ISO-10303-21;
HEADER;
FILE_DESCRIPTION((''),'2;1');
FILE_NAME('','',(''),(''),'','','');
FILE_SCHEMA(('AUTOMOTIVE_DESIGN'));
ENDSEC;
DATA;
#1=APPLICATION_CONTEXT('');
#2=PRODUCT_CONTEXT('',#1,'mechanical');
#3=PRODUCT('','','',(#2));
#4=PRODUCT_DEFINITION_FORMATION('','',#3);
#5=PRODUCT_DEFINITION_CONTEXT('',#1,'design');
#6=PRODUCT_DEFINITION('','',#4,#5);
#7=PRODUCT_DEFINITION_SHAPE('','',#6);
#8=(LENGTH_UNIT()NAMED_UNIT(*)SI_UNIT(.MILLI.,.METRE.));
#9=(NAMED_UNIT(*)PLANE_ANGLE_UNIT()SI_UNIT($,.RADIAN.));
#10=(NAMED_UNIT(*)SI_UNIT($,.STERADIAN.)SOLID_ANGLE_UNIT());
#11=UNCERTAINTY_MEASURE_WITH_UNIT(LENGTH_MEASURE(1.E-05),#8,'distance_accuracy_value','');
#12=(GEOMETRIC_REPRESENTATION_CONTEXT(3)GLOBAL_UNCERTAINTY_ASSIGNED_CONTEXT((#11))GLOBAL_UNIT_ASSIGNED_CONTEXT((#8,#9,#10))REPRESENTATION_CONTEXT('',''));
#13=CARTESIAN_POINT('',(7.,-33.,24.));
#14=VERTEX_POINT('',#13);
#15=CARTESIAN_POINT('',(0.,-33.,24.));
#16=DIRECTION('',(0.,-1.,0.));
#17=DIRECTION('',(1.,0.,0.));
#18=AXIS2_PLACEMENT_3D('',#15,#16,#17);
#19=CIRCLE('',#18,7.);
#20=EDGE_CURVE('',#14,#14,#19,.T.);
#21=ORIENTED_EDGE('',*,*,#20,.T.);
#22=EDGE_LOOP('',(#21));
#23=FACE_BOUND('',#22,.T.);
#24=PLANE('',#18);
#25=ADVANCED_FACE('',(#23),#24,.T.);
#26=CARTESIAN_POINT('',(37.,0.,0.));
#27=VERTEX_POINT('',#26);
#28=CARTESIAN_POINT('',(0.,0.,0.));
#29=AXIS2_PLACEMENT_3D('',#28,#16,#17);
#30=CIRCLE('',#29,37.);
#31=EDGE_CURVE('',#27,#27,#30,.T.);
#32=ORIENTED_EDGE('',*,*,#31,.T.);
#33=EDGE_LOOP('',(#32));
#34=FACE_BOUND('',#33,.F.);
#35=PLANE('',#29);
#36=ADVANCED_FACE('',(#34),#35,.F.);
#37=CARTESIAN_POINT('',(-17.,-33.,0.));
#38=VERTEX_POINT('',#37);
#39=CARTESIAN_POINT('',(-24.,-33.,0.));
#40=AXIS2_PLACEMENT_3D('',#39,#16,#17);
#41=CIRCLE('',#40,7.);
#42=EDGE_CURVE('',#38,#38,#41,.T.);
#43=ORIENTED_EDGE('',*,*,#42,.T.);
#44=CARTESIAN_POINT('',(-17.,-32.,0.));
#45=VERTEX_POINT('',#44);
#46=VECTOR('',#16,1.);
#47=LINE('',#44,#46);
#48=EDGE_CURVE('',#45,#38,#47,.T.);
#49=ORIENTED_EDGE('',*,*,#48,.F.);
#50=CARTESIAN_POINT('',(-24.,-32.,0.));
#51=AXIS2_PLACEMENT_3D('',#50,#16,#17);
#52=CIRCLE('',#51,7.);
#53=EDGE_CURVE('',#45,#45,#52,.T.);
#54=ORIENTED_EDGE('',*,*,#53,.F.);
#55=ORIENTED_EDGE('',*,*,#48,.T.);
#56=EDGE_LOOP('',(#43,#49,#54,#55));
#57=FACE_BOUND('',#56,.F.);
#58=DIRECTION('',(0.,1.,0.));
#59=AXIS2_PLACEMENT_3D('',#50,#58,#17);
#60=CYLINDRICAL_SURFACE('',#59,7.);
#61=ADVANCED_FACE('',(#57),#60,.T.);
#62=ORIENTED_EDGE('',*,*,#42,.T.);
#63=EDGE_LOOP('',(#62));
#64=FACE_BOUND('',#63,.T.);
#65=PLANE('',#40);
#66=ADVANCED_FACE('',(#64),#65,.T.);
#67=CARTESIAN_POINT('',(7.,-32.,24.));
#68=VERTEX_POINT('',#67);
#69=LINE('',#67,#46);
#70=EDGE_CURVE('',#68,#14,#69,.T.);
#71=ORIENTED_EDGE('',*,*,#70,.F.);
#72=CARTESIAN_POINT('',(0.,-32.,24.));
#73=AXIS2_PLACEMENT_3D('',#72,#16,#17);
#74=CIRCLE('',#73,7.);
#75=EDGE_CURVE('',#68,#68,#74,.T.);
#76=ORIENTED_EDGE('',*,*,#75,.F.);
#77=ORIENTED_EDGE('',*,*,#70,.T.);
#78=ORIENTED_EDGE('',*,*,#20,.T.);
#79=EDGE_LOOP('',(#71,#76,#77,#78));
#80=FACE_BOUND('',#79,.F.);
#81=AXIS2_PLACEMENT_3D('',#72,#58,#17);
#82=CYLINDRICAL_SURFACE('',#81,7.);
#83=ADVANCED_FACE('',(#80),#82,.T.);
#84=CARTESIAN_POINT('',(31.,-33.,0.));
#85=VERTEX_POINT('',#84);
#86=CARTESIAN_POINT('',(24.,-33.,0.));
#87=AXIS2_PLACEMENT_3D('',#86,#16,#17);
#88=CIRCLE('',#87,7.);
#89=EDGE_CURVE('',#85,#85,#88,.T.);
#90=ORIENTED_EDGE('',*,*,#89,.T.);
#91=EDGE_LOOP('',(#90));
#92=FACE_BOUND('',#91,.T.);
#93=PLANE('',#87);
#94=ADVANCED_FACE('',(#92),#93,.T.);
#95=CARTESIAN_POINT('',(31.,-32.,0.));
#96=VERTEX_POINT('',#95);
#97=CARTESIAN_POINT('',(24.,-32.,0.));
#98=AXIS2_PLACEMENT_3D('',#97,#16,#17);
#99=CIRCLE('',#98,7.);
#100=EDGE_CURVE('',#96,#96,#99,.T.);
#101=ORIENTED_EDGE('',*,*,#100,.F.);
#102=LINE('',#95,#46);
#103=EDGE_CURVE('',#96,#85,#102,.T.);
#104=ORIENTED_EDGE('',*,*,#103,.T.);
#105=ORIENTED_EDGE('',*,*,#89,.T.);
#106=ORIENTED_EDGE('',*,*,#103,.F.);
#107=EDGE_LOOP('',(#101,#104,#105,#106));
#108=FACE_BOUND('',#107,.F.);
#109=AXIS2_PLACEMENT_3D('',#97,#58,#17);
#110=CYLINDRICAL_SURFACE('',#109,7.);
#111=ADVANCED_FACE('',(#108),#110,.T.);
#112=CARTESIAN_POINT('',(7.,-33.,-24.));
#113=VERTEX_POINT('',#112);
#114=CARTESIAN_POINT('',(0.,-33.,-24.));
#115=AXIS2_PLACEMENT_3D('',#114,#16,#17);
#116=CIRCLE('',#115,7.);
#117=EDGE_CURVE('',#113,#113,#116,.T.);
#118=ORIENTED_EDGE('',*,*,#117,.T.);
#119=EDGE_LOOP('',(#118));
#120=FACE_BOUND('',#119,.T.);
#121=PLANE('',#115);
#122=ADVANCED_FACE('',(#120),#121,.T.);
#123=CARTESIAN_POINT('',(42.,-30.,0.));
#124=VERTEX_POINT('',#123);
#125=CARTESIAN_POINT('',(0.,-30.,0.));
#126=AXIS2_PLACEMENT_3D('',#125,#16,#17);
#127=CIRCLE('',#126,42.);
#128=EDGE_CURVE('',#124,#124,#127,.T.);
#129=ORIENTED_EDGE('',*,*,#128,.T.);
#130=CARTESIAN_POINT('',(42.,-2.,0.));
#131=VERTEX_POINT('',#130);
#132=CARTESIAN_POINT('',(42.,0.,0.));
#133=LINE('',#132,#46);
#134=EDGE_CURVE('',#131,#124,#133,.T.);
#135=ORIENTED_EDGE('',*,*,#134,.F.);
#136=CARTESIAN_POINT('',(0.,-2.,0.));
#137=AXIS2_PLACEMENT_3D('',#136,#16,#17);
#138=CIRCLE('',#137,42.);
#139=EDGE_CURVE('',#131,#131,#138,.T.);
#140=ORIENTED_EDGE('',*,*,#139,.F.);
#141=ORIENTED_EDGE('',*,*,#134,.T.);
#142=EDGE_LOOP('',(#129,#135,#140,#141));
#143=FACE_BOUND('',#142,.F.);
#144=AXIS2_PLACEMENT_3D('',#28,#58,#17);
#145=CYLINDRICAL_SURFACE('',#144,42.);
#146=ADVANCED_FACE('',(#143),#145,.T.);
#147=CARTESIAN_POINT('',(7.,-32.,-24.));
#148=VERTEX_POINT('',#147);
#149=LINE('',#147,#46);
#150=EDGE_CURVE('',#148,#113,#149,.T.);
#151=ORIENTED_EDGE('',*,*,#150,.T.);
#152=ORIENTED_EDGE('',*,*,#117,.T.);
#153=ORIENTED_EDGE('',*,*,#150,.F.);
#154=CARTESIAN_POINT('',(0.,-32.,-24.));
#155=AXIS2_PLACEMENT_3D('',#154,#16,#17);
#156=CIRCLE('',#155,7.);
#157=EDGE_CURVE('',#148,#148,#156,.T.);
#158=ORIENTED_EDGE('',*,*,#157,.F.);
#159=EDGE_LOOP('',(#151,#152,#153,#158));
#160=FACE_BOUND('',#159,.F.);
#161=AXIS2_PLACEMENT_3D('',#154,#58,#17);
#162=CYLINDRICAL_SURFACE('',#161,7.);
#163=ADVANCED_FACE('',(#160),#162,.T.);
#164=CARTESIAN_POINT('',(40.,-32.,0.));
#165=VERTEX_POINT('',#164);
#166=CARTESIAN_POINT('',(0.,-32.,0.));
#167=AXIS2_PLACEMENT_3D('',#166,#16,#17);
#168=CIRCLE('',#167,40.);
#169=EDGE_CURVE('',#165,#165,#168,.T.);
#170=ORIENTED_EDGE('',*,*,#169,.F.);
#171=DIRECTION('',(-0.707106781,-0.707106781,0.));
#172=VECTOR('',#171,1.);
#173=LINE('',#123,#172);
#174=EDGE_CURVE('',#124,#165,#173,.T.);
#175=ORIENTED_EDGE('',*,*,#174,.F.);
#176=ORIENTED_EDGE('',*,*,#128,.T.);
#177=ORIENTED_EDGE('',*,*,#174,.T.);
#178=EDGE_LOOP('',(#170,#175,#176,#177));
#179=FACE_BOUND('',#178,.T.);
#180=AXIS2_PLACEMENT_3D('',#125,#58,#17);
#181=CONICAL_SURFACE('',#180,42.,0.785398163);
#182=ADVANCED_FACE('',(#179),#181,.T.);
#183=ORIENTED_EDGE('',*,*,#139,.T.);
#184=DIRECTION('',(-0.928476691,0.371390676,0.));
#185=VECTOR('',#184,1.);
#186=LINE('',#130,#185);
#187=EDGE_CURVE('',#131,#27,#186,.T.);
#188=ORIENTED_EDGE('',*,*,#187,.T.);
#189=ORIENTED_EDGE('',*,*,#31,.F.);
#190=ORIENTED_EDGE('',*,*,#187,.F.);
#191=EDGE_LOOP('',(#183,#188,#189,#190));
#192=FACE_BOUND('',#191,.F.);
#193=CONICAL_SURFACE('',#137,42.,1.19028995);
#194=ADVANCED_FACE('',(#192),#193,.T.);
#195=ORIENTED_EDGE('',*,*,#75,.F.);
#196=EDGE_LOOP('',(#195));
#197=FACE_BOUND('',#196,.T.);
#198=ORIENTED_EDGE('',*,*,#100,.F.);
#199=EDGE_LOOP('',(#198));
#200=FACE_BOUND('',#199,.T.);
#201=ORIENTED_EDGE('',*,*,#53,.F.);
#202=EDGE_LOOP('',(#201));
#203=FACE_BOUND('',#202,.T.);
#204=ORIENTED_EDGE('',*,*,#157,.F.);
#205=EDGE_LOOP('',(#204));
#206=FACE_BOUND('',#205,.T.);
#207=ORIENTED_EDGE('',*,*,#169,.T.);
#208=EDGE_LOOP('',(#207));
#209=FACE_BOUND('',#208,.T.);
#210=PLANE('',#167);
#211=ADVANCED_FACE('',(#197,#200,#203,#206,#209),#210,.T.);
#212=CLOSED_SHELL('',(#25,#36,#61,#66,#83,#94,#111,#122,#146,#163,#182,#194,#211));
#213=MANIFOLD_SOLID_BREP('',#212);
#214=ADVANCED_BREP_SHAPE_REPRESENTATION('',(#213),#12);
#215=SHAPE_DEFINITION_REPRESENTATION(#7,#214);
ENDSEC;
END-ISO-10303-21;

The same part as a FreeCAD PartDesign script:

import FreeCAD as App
import Part
import Sketcher

V = App.Vector
Q = App.Units.Quantity


def edges_at(feature, points):
    """Names of the edges that pass closest to the given points."""
    edges = feature.Shape.Edges
    near = lambda p: min(range(len(edges)), key=lambda i: edges[i].distToShape(Part.Vertex(*p))[0])
    return sorted({f"Edge{near(p) + 1}" for p in points})

doc = App.newDocument("Part")
body = doc.addObject("PartDesign::Body", "Body")

# Sketch on XZ plane
sketch1 = body.newObject("Sketcher::SketchObject", "Sketch")
sketch1.AttachmentSupport = (doc.getObject("XZ_Plane"), [""])
sketch1.MapMode = "FlatFace"
sketch1.addGeometry(Part.Circle(V(0, 0, 0), V(0, 0, 1), 42), False)
sketch1.addConstraint([
    Sketcher.Constraint("Coincident", 0, 3, -1, 1),
    Sketcher.Constraint("Diameter", 0, Q("84 mm")),
])
pad1 = body.newObject("PartDesign::Pad", "Pad")
pad1.Profile = sketch1
pad1.Length = 32
doc.recompute()

chamfer = body.newObject("PartDesign::Chamfer", "Chamfer")
chamfer.Base = (pad1, edges_at(pad1, [(-42, 0, 0)]))
chamfer.ChamferType = "Two distances"
chamfer.Size = 2
chamfer.Size2 = 5
doc.recompute()

chamfer2 = body.newObject("PartDesign::Chamfer", "Chamfer001")
chamfer2.Base = (chamfer, edges_at(chamfer, [(-42, -32, 0)]))
chamfer2.Size = 2

# Sketch on XZ plane
sketch2 = body.newObject("Sketcher::SketchObject", "Sketch001")
sketch2.AttachmentSupport = (doc.getObject("XZ_Plane"), [""])
sketch2.MapMode = "FlatFace"
sketch2.AttachmentOffset = App.Placement(V(0, 0, 32), App.Rotation())
sketch2.addGeometry([
    Part.Circle(V(-24, 0, 0), V(0, 0, 1), 7),
    Part.Circle(V(24, 0, 0), V(0, 0, 1), 7),
    Part.Circle(V(0, 24, 0), V(0, 0, 1), 7),
    Part.Circle(V(0, -24, 0), V(0, 0, 1), 7),
], False)
sketch2.addConstraint([
    Sketcher.Constraint("Equal", 0, 1),
    Sketcher.Constraint("Equal", 1, 2),
    Sketcher.Constraint("Equal", 2, 3),
    Sketcher.Constraint("Symmetric", 0, 3, 1, 3, -1, 1),
    Sketcher.Constraint("Symmetric", 2, 3, 3, 3, -1, 1),
    Sketcher.Constraint("PointOnObject", 0, 3, -1),
    Sketcher.Constraint("PointOnObject", 2, 3, -2),
    Sketcher.Constraint("Diameter", 0, Q("14 mm")),
    Sketcher.Constraint("DistanceX", 0, 3, -1, 1, Q("24 mm")),
    Sketcher.Constraint("DistanceY", -1, 1, 2, 3, Q("24 mm")),
])
pad2 = body.newObject("PartDesign::Pad", "Pad001")
pad2.Profile = sketch2
pad2.Length = 1

doc.recompute()
